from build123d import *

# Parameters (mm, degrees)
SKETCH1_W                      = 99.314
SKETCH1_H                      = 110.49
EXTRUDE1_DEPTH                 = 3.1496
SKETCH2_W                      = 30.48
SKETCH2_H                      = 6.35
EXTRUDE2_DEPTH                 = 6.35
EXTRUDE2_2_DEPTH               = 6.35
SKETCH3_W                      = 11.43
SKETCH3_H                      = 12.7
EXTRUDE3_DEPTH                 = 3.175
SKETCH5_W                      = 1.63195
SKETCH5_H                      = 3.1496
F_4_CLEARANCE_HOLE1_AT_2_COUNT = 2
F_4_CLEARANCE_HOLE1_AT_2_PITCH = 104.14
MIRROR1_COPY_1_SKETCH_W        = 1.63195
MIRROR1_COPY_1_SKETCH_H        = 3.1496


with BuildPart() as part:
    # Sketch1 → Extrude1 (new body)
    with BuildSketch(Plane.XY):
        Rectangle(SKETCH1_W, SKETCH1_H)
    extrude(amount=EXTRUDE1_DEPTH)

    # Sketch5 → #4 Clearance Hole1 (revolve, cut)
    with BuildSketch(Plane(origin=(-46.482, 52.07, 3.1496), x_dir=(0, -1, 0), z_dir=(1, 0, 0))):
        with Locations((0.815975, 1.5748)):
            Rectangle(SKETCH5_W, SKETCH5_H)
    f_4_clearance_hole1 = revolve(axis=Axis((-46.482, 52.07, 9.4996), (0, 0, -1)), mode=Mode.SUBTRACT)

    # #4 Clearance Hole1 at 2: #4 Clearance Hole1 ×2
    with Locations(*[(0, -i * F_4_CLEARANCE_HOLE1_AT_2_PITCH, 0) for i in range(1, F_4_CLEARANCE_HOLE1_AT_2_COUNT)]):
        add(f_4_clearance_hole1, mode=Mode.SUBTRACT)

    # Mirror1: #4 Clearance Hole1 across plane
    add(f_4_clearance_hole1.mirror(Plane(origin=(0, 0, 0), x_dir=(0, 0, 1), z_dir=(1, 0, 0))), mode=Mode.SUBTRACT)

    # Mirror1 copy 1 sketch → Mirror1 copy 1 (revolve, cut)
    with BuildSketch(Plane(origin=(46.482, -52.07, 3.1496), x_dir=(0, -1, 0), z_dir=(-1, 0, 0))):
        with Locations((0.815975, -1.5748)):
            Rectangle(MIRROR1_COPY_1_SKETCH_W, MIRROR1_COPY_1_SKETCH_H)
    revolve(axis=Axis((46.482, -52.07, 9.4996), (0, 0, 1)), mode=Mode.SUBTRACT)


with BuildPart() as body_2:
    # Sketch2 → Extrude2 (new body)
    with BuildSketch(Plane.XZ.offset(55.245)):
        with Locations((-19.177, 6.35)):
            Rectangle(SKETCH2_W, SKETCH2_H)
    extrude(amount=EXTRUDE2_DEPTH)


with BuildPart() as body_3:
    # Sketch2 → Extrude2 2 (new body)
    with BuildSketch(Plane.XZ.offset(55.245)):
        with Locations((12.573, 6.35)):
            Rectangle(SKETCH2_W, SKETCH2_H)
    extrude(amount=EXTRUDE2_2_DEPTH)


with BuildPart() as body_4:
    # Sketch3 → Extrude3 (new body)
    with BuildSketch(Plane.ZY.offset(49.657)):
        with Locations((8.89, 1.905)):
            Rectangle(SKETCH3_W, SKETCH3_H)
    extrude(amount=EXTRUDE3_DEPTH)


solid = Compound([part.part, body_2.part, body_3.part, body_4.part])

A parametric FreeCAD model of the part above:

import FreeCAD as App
import Part
import Sketcher

V = App.Vector
Q = App.Units.Quantity


def add_polygon(sketch, points):
    """Adds a closed chain of lines whose ends are joined by coincident constraints."""
    first, n = sketch.GeometryCount, len(points)
    for a, b in zip(points, points[1:] + points[:1]):
        sketch.addGeometry(Part.LineSegment(App.Vector(*a, 0), App.Vector(*b, 0)), False)
    for i in range(n):
        sketch.addConstraint(Sketcher.Constraint("Coincident", first + i, 2, first + (i + 1) % n, 1))

doc = App.newDocument("Part")
body = doc.addObject("PartDesign::Body", "Body")

# Sketch on XY plane
sketch1 = doc.addObject("Sketcher::SketchObject", "Sketch")
body.addObject(sketch1)
sketch1.AttachmentSupport = (doc.XY_Plane, [""])
sketch1.MapMode = "FlatFace"
add_polygon(sketch1, [(-49.657, 55.245), (-49.657, -55.245), (49.657, -55.245), (49.657, 55.245)])  # lines 0-3
sketch1.addConstraint(Sketcher.Constraint("Vertical", 0))
sketch1.addConstraint(Sketcher.Constraint("Horizontal", 1))
sketch1.addConstraint(Sketcher.Constraint("Vertical", 2))
sketch1.addConstraint(Sketcher.Constraint("Horizontal", 3))
sketch1.addConstraint(Sketcher.Constraint("Symmetric", 0, 2, 2, 2, -1, 1))
sketch1.addConstraint(Sketcher.Constraint("DistanceX", 1, 1, 1, 2, Q("3.91 in")))
sketch1.addConstraint(Sketcher.Constraint("DistanceY", 0, 2, 0, 1, Q("4.35 in")))
pad1 = doc.addObject("PartDesign::Pad", "Pad")
body.addObject(pad1)
pad1.Profile = sketch1
pad1.Length = Q("0.124 in")

# Sketch on YZ plane
sketch2 = doc.addObject("Sketcher::SketchObject", "Sketch001")
body.addObject(sketch2)
sketch2.AttachmentSupport = (doc.YZ_Plane, [""])
sketch2.MapMode = "FlatFace"
sketch2.AttachmentOffset = App.Placement(V(0, 0, -1.83 * 25.4), App.Rotation())
add_polygon(sketch2, [(52.07, 0), (52.07, 3.1496), (50.43805, 3.1496), (50.43805, 0)])  # lines 0-3
sketch2.addGeometry(Part.LineSegment(V(52.07, 3.1496, 0), V(52.07, 0, 0)), True)  # axis
sketch2.addConstraint(Sketcher.Constraint("Vertical", 0))
sketch2.addConstraint(Sketcher.Constraint("Horizontal", 1))
sketch2.addConstraint(Sketcher.Constraint("Vertical", 2))
sketch2.addConstraint(Sketcher.Constraint("Horizontal", 3))
sketch2.addConstraint(Sketcher.Constraint("Vertical", 4))
sketch2.addConstraint(Sketcher.Constraint("Coincident", 4, 1, 0, 2))
sketch2.addConstraint(Sketcher.Constraint("PointOnObject", 2, 2, -1))
sketch2.addConstraint(Sketcher.Constraint("PointOnObject", 4, 2, -1))
sketch2.addConstraint(Sketcher.Constraint("DistanceY", 0, 1, 0, 2, Q("0.124 in")))
sketch2.addConstraint(Sketcher.Constraint("DistanceX", -1, 1, 0, 2, Q("2.05 in")))
sketch2.addConstraint(Sketcher.Constraint("DistanceX", 1, 2, 1, 1, Q("1.63195 mm")))
groove = doc.addObject("PartDesign::Groove", "Groove")
body.addObject(groove)
groove.Profile = sketch2
groove.ReferenceAxis = (sketch2, ["Axis0"])
groove.Angle = 360
doc.recompute()

linearpattern = doc.addObject("PartDesign::LinearPattern", "LinearPattern")
body.addObject(linearpattern)
linearpattern.Originals = [groove]
linearpattern.Direction = (doc.Y_Axis, [""])
linearpattern.Mode = "offset"
linearpattern.Offset = Q("4.1 in")
linearpattern.Occurrences = 2
linearpattern.Reversed = True
body.Tip = linearpattern
doc.recompute()

mirrored = doc.addObject("PartDesign::Mirrored", "Mirrored")
body.addObject(mirrored)
mirrored.Originals = [groove]
mirrored.MirrorPlane = (doc.YZ_Plane, [""])
body.Tip = mirrored

# Sketch on YZ plane
sketch3 = doc.addObject("Sketcher::SketchObject", "Sketch002")
body.addObject(sketch3)
sketch3.AttachmentSupport = (doc.YZ_Plane, [""])
sketch3.MapMode = "FlatFace"
sketch3.AttachmentOffset = App.Placement(V(0, 0, 1.83 * 25.4), App.Rotation())
add_polygon(sketch3, [(-52.07, 3.1496), (-52.07, 0), (-53.70195, 0), (-53.70195, 3.1496)])  # lines 0-3
sketch3.addGeometry(Part.LineSegment(V(-52.07, 0, 0), V(-52.07, 3.1496, 0)), True)  # axis
sketch3.addConstraint(Sketcher.Constraint("Vertical", 0))
sketch3.addConstraint(Sketcher.Constraint("Horizontal", 1))
sketch3.addConstraint(Sketcher.Constraint("Vertical", 2))
sketch3.addConstraint(Sketcher.Constraint("Horizontal", 3))
sketch3.addConstraint(Sketcher.Constraint("Vertical", 4))
sketch3.addConstraint(Sketcher.Constraint("Coincident", 4, 1, 0, 2))
sketch3.addConstraint(Sketcher.Constraint("PointOnObject", 0, 2, -1))
sketch3.addConstraint(Sketcher.Constraint("Horizontal", 2, 2, 4, 2))
sketch3.addConstraint(Sketcher.Constraint("DistanceY", 0, 2, 0, 1, Q("0.124 in")))
sketch3.addConstraint(Sketcher.Constraint("DistanceX", 0, 2, -1, 1, Q("2.05 in")))
sketch3.addConstraint(Sketcher.Constraint("DistanceX", 1, 2, 1, 1, Q("1.63195 mm")))
groove2 = doc.addObject("PartDesign::Groove", "Groove001")
body.addObject(groove2)
groove2.Profile = sketch3
groove2.ReferenceAxis = (sketch3, ["Axis0"])
groove2.Angle = 360
body2 = doc.addObject("PartDesign::Body", "Body001")

# Sketch on XZ plane
sketch4 = doc.addObject("Sketcher::SketchObject", "Sketch003")
body2.addObject(sketch4)
sketch4.AttachmentSupport = (doc.getObject("XZ_Plane001"), [""])
sketch4.MapMode = "FlatFace"
sketch4.AttachmentOffset = App.Placement(V(0, 0, 2.175 * 25.4), App.Rotation())
add_polygon(sketch4, [(-34.417, 9.525), (-34.417, 3.175), (-3.937, 3.175), (-3.937, 9.525)])  # lines 0-3
sketch4.addConstraint(Sketcher.Constraint("Vertical", 0))
sketch4.addConstraint(Sketcher.Constraint("Horizontal", 1))
sketch4.addConstraint(Sketcher.Constraint("Vertical", 2))
sketch4.addConstraint(Sketcher.Constraint("Horizontal", 3))
sketch4.addConstraint(Sketcher.Constraint("DistanceX", 1, 1, 1, 2, Q("1.2 in")))
sketch4.addConstraint(Sketcher.Constraint("DistanceY", 0, 2, 0, 1, Q("0.25 in")))
sketch4.addConstraint(Sketcher.Constraint("DistanceX", 0, 2, -1, 1, Q("1.355 in")))
sketch4.addConstraint(Sketcher.Constraint("DistanceY", -1, 1, 0, 2, Q("0.125 in")))
pad2 = doc.addObject("PartDesign::Pad", "Pad001")
body2.addObject(pad2)
pad2.Profile = sketch4
pad2.Length = Q("0.25 in")
body3 = doc.addObject("PartDesign::Body", "Body002")

# Sketch on XZ plane
sketch5 = doc.addObject("Sketcher::SketchObject", "Sketch004")
body3.addObject(sketch5)
sketch5.AttachmentSupport = (doc.getObject("XZ_Plane002"), [""])
sketch5.MapMode = "FlatFace"
sketch5.AttachmentOffset = App.Placement(V(0, 0, 2.175 * 25.4), App.Rotation())
add_polygon(sketch5, [(-2.667, 9.525), (-2.667, 3.175), (27.813, 3.175), (27.813, 9.525)])  # lines 0-3
sketch5.addConstraint(Sketcher.Constraint("Vertical", 0))
sketch5.addConstraint(Sketcher.Constraint("Horizontal", 1))
sketch5.addConstraint(Sketcher.Constraint("Vertical", 2))
sketch5.addConstraint(Sketcher.Constraint("Horizontal", 3))
sketch5.addConstraint(Sketcher.Constraint("DistanceX", 1, 1, 1, 2, Q("1.2 in")))
sketch5.addConstraint(Sketcher.Constraint("DistanceY", 0, 2, 0, 1, Q("0.25 in")))
sketch5.addConstraint(Sketcher.Constraint("DistanceX", 0, 2, -1, 1, Q("0.105 in")))
sketch5.addConstraint(Sketcher.Constraint("DistanceY", -1, 1, 0, 2, Q("0.125 in")))
pad3 = doc.addObject("PartDesign::Pad", "Pad002")
body3.addObject(pad3)
pad3.Profile = sketch5
pad3.Length = Q("0.25 in")
body4 = doc.addObject("PartDesign::Body", "Body003")

# Sketch on YZ plane
sketch6 = doc.addObject("Sketcher::SketchObject", "Sketch005")
body4.addObject(sketch6)
sketch6.AttachmentSupport = (doc.getObject("YZ_Plane003"), [""])
sketch6.MapMode = "FlatFace"
sketch6.AttachmentOffset = App.Placement(V(0, 0, -1.955 * 25.4), App.Rotation())
add_polygon(sketch6, [(8.255, 3.175), (-4.445, 3.175), (-4.445, 14.605), (8.255, 14.605)])  # lines 0-3
sketch6.addConstraint(Sketcher.Constraint("Horizontal", 0))
sketch6.addConstraint(Sketcher.Constraint("Vertical", 1))
sketch6.addConstraint(Sketcher.Constraint("Horizontal", 2))
sketch6.addConstraint(Sketcher.Constraint("Vertical", 3))
sketch6.addConstraint(Sketcher.Constraint("DistanceX", 0, 2, 0, 1, Q("0.5 in")))
sketch6.addConstraint(Sketcher.Constraint("DistanceY", 1, 1, 1, 2, Q("0.45 in")))
sketch6.addConstraint(Sketcher.Constraint("DistanceX", 0, 2, -1, 1, Q("0.175 in")))
sketch6.addConstraint(Sketcher.Constraint("DistanceY", -1, 1, 0, 2, Q("0.125 in")))
pad4 = doc.addObject("PartDesign::Pad", "Pad003")
body4.addObject(pad4)
pad4.Profile = sketch6
pad4.Length = Q("0.125 in")
pad4.Reversed = True

doc.recompute()
